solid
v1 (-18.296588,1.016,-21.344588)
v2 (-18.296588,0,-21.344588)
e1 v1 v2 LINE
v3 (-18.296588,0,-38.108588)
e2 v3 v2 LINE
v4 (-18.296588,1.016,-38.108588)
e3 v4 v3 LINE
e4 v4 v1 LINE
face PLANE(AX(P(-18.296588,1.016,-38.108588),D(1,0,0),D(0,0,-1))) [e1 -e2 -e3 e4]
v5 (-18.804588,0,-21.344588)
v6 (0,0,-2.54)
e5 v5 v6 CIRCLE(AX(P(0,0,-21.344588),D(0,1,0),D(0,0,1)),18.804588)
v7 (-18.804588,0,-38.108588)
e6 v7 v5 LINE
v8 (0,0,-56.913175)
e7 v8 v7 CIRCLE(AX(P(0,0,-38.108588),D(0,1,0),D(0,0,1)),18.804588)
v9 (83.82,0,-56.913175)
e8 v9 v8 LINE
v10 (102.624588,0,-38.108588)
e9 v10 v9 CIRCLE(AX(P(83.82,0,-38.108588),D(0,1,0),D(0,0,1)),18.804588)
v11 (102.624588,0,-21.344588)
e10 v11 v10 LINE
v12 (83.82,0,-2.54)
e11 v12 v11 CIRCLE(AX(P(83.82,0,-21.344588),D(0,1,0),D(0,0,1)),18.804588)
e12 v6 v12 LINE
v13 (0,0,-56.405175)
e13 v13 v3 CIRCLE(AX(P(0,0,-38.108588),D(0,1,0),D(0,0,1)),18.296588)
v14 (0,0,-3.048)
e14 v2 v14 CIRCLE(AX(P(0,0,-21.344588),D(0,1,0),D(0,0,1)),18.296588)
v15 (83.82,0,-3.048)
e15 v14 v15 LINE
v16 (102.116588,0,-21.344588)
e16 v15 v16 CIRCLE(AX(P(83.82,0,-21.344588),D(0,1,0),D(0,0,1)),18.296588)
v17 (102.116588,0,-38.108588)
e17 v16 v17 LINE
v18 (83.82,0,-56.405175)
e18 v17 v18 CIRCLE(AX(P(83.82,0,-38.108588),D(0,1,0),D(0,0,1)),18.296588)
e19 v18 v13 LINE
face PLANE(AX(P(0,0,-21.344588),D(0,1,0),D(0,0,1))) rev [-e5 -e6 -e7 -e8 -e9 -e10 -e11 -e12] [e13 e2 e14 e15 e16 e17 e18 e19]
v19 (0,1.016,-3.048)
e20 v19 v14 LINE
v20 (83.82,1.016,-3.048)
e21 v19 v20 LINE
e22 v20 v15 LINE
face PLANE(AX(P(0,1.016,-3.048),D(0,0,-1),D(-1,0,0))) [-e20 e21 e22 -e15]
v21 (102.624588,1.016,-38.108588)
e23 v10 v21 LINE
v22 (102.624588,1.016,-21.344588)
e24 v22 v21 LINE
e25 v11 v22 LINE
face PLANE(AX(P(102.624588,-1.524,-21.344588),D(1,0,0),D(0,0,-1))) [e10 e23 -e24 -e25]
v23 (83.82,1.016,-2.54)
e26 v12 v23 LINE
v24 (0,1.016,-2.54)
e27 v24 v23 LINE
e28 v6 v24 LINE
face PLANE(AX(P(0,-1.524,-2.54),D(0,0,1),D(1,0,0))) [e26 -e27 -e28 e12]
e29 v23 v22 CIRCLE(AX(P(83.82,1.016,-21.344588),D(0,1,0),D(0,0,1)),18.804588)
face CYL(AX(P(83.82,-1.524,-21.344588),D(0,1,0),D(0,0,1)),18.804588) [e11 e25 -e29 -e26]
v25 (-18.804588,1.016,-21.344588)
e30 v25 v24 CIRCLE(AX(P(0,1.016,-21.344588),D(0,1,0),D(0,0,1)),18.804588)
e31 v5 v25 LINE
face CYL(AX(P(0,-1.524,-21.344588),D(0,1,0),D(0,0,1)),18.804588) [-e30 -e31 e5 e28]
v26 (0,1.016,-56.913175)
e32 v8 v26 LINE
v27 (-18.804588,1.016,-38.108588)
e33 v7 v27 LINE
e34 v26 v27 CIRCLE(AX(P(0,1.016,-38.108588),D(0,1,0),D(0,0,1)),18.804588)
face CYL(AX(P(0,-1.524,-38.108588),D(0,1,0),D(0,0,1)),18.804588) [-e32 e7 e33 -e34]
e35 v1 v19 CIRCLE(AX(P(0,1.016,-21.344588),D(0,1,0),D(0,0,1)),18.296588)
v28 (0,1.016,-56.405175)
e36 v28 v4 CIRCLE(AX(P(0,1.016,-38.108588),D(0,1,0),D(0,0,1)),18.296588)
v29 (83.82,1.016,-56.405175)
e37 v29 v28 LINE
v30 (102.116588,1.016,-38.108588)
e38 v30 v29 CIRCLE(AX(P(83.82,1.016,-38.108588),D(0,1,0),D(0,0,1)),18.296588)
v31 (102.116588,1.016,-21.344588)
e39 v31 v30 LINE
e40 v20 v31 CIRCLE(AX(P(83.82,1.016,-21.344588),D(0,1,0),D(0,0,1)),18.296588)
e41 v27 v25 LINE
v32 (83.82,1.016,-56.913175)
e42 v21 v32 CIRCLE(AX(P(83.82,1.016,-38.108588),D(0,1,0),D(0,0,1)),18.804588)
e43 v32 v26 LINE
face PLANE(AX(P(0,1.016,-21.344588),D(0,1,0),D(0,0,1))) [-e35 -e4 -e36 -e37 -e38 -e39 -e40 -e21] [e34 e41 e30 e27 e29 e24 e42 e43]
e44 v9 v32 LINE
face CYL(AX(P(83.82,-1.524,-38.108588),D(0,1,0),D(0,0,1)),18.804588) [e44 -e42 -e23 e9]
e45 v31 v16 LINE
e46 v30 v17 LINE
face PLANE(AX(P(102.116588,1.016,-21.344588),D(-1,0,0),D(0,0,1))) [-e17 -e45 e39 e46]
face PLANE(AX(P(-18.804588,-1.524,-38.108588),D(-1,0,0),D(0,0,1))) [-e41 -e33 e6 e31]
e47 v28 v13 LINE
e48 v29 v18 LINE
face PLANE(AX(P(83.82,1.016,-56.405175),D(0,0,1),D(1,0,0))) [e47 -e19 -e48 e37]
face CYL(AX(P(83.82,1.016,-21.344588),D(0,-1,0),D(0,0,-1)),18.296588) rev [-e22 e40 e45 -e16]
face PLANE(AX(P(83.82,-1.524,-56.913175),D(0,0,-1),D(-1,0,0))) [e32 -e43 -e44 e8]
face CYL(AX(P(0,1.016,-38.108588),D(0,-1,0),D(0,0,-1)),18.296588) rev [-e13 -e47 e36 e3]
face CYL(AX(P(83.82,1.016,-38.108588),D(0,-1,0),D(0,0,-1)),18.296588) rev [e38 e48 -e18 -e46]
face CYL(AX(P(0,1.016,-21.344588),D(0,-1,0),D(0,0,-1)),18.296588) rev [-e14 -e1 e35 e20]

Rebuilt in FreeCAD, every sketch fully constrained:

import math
import FreeCAD as App
import Part
import Sketcher
from FreeCAD import Vector
Q = App.Units.Quantity

doc = App.newDocument("Part")
body = doc.addObject("PartDesign::Body", "Body")

# Sketch on XZ plane
sketch1 = body.newObject("Sketcher::SketchObject", "Sketch")
sketch1.AttachmentSupport = (doc.getObject("XZ_Plane"), [""])
sketch1.MapMode = "FlatFace"
sketch1.addGeometry(Part.LineSegment(Vector(0, 0, 0), Vector(84, 0, 0)), False)
sketch1.addGeometry(Part.ArcOfCircle(Part.Circle(Vector(84, -21, 0), Vector(0, 0, 1), 21), math.radians(0), math.radians(90)), False)
sketch1.addGeometry(Part.LineSegment(Vector(105, -21, 0), Vector(105, -38, 0)), False)
sketch1.addGeometry(Part.ArcOfCircle(Part.Circle(Vector(84, -38, 0), Vector(0, 0, 1), 21), math.radians(-90), math.radians(0)), False)
sketch1.addGeometry(Part.LineSegment(Vector(84, -59, 0), Vector(0, -59, 0)), False)
sketch1.addGeometry(Part.ArcOfCircle(Part.Circle(Vector(0, -38, 0), Vector(0, 0, 1), 21), math.radians(180), math.radians(270)), False)
sketch1.addGeometry(Part.LineSegment(Vector(-21, -38, 0), Vector(-21, -21, 0)), False)
sketch1.addGeometry(Part.ArcOfCircle(Part.Circle(Vector(0, -21, 0), Vector(0, 0, 1), 21), math.radians(90), math.radians(180)), False)
sketch1.addGeometry(Part.LineSegment(Vector(84, -3, 0), Vector(0, -3, 0)), False)
sketch1.addGeometry(Part.ArcOfCircle(Part.Circle(Vector(0, -21, 0), Vector(0, 0, 1), 18), math.radians(90), math.radians(180)), False)
sketch1.addGeometry(Part.LineSegment(Vector(-18, -21, 0), Vector(-18, -38, 0)), False)
sketch1.addGeometry(Part.ArcOfCircle(Part.Circle(Vector(0, -38, 0), Vector(0, 0, 1), 18), math.radians(180), math.radians(270)), False)
sketch1.addGeometry(Part.LineSegment(Vector(0, -56, 0), Vector(84, -56, 0)), False)
sketch1.addGeometry(Part.ArcOfCircle(Part.Circle(Vector(84, -38, 0), Vector(0, 0, 1), 18), math.radians(-90), math.radians(0)), False)
sketch1.addGeometry(Part.LineSegment(Vector(102, -38, 0), Vector(102, -21, 0)), False)
sketch1.addGeometry(Part.ArcOfCircle(Part.Circle(Vector(84, -21, 0), Vector(0, 0, 1), 18), math.radians(0), math.radians(90)), False)
sketch1.addConstraint(Sketcher.Constraint("Tangent", 0, 2, 1, 2))
sketch1.addConstraint(Sketcher.Constraint("Tangent", 1, 1, 2, 1))
sketch1.addConstraint(Sketcher.Constraint("Tangent", 2, 2, 3, 2))
sketch1.addConstraint(Sketcher.Constraint("Tangent", 3, 1, 4, 1))
sketch1.addConstraint(Sketcher.Constraint("Tangent", 4, 2, 5, 2))
sketch1.addConstraint(Sketcher.Constraint("Tangent", 5, 1, 6, 1))
sketch1.addConstraint(Sketcher.Constraint("Tangent", 6, 2, 7, 2))
sketch1.addConstraint(Sketcher.Constraint("Tangent", 7, 1, 0, 1))
sketch1.addConstraint(Sketcher.Constraint("Tangent", 8, 2, 9, 1))
sketch1.addConstraint(Sketcher.Constraint("Tangent", 9, 2, 10, 1))
sketch1.addConstraint(Sketcher.Constraint("Tangent", 10, 2, 11, 1))
sketch1.addConstraint(Sketcher.Constraint("Tangent", 11, 2, 12, 1))
sketch1.addConstraint(Sketcher.Constraint("Tangent", 12, 2, 13, 1))
sketch1.addConstraint(Sketcher.Constraint("Tangent", 13, 2, 14, 1))
sketch1.addConstraint(Sketcher.Constraint("Tangent", 14, 2, 15, 1))
sketch1.addConstraint(Sketcher.Constraint("Tangent", 15, 2, 8, 1))
sketch1.addConstraint(Sketcher.Constraint("Horizontal", 0))
sketch1.addConstraint(Sketcher.Constraint("Vertical", 2))
sketch1.addConstraint(Sketcher.Constraint("Horizontal", 4))
sketch1.addConstraint(Sketcher.Constraint("Vertical", 6))
sketch1.addConstraint(Sketcher.Constraint("Horizontal", 8))
sketch1.addConstraint(Sketcher.Constraint("Vertical", 10))
sketch1.addConstraint(Sketcher.Constraint("Horizontal", 12))
sketch1.addConstraint(Sketcher.Constraint("Vertical", 14))
sketch1.addConstraint(Sketcher.Constraint("Coincident", 7, 1, -1, 1))
sketch1.addConstraint(Sketcher.Constraint("Coincident", 9, 3, 7, 3))
sketch1.addConstraint(Sketcher.Constraint("Coincident", 11, 3, 5, 3))
sketch1.addConstraint(Sketcher.Constraint("Coincident", 13, 3, 3, 3))
sketch1.addConstraint(Sketcher.Constraint("Equal", 1, 3))
sketch1.addConstraint(Sketcher.Constraint("Equal", 3, 5))
sketch1.addConstraint(Sketcher.Constraint("Equal", 5, 7))
sketch1.addConstraint(Sketcher.Constraint("Equal", 13, 15))
sketch1.addConstraint(Sketcher.Constraint("DistanceX", 0, 1, 0, 2, Q("3.3 in")))
sketch1.addConstraint(Sketcher.Constraint("DistanceY", 2, 2, 2, 1, Q("0.66 in")))
sketch1.addConstraint(Sketcher.Constraint("DistanceY", 8, 2, -1, 1, Q("0.12 in")))
sketch1.addConstraint(Sketcher.Constraint("Radius", 1, Q("21.344588 mm")))
pad1 = body.newObject("PartDesign::Pad", "Pad")
pad1.Profile = sketch1
pad1.Length = Q("0.04 in")
pad1.Reversed = True

# Sketch on XZ plane
sketch2 = body.newObject("Sketcher::SketchObject", "Sketch001")
sketch2.AttachmentSupport = (doc.getObject("XZ_Plane"), [""])
sketch2.MapMode = "FlatFace"
sketch2.AttachmentOffset = App.Placement(Vector(0, 0, -0.04 * 25.4), App.Rotation())
sketch2.addGeometry(Part.LineSegment(Vector(0, 0, 0), Vector(84, 0, 0)), False)
sketch2.addGeometry(Part.ArcOfCircle(Part.Circle(Vector(84, -21, 0), Vector(0, 0, 1), 21), math.radians(0), math.radians(90)), False)
sketch2.addGeometry(Part.LineSegment(Vector(105, -21, 0), Vector(105, -38, 0)), False)
sketch2.addGeometry(Part.ArcOfCircle(Part.Circle(Vector(84, -38, 0), Vector(0, 0, 1), 21), math.radians(-90), math.radians(0)), False)
sketch2.addGeometry(Part.LineSegment(Vector(84, -59, 0), Vector(0, -59, 0)), False)
sketch2.addGeometry(Part.ArcOfCircle(Part.Circle(Vector(0, -38, 0), Vector(0, 0, 1), 21), math.radians(180), math.radians(270)), False)
sketch2.addGeometry(Part.LineSegment(Vector(-21, -38, 0), Vector(-21, -21, 0)), False)
sketch2.addGeometry(Part.ArcOfCircle(Part.Circle(Vector(0, -21, 0), Vector(0, 0, 1), 21), math.radians(90), math.radians(180)), False)
sketch2.addGeometry(Part.LineSegment(Vector(84, -3, 0), Vector(0, -3, 0)), False)
sketch2.addGeometry(Part.ArcOfCircle(Part.Circle(Vector(0, -21, 0), Vector(0, 0, 1), 19), math.radians(90), math.radians(180)), False)
sketch2.addGeometry(Part.LineSegment(Vector(-19, -21, 0), Vector(-19, -38, 0)), False)
sketch2.addGeometry(Part.ArcOfCircle(Part.Circle(Vector(0, -38, 0), Vector(0, 0, 1), 19), math.radians(180), math.radians(270)), False)
sketch2.addGeometry(Part.LineSegment(Vector(0, -57, 0), Vector(84, -57, 0)), False)
sketch2.addGeometry(Part.ArcOfCircle(Part.Circle(Vector(84, -38, 0), Vector(0, 0, 1), 19), math.radians(-90), math.radians(0)), False)
sketch2.addGeometry(Part.LineSegment(Vector(103, -38, 0), Vector(103, -21, 0)), False)
sketch2.addGeometry(Part.ArcOfCircle(Part.Circle(Vector(84, -21, 0), Vector(0, 0, 1), 19), math.radians(0), math.radians(90)), False)
sketch2.addConstraint(Sketcher.Constraint("Tangent", 0, 2, 1, 2))
sketch2.addConstraint(Sketcher.Constraint("Tangent", 1, 1, 2, 1))
sketch2.addConstraint(Sketcher.Constraint("Tangent", 2, 2, 3, 2))
sketch2.addConstraint(Sketcher.Constraint("Tangent", 3, 1, 4, 1))
sketch2.addConstraint(Sketcher.Constraint("Tangent", 4, 2, 5, 2))
sketch2.addConstraint(Sketcher.Constraint("Tangent", 5, 1, 6, 1))
sketch2.addConstraint(Sketcher.Constraint("Tangent", 6, 2, 7, 2))
sketch2.addConstraint(Sketcher.Constraint("Tangent", 7, 1, 0, 1))
sketch2.addConstraint(Sketcher.Constraint("Tangent", 8, 2, 9, 1))
sketch2.addConstraint(Sketcher.Constraint("Tangent", 9, 2, 10, 1))
sketch2.addConstraint(Sketcher.Constraint("Tangent", 10, 2, 11, 1))
sketch2.addConstraint(Sketcher.Constraint("Tangent", 11, 2, 12, 1))
sketch2.addConstraint(Sketcher.Constraint("Tangent", 12, 2, 13, 1))
sketch2.addConstraint(Sketcher.Constraint("Tangent", 13, 2, 14, 1))
sketch2.addConstraint(Sketcher.Constraint("Tangent", 14, 2, 15, 1))
sketch2.addConstraint(Sketcher.Constraint("Tangent", 15, 2, 8, 1))
sketch2.addConstraint(Sketcher.Constraint("Horizontal", 0))
sketch2.addConstraint(Sketcher.Constraint("Vertical", 2))
sketch2.addConstraint(Sketcher.Constraint("Horizontal", 4))
sketch2.addConstraint(Sketcher.Constraint("Vertical", 6))
sketch2.addConstraint(Sketcher.Constraint("Horizontal", 8))
sketch2.addConstraint(Sketcher.Constraint("Vertical", 10))
sketch2.addConstraint(Sketcher.Constraint("Horizontal", 12))
sketch2.addConstraint(Sketcher.Constraint("Vertical", 14))
sketch2.addConstraint(Sketcher.Constraint("Coincident", 7, 1, -1, 1))
sketch2.addConstraint(Sketcher.Constraint("Coincident", 9, 3, 7, 3))
sketch2.addConstraint(Sketcher.Constraint("Coincident", 11, 3, 5, 3))
sketch2.addConstraint(Sketcher.Constraint("Coincident", 13, 3, 3, 3))
sketch2.addConstraint(Sketcher.Constraint("Equal", 1, 3))
sketch2.addConstraint(Sketcher.Constraint("Equal", 3, 5))
sketch2.addConstraint(Sketcher.Constraint("Equal", 5, 7))
sketch2.addConstraint(Sketcher.Constraint("Equal", 13, 15))
sketch2.addConstraint(Sketcher.Constraint("DistanceX", 0, 1, 0, 2, Q("3.3 in")))
sketch2.addConstraint(Sketcher.Constraint("DistanceY", 2, 2, 2, 1, Q("0.66 in")))
sketch2.addConstraint(Sketcher.Constraint("DistanceY", 8, 2, -1, 1, Q("0.1 in")))
sketch2.addConstraint(Sketcher.Constraint("Radius", 1, Q("21.344588 mm")))
pocket1 = body.newObject("PartDesign::Pocket", "Pocket")
pocket1.Profile = sketch2
pocket1.Length = Q("0.1 in")
pocket1.Reversed = True

doc.recompute()
